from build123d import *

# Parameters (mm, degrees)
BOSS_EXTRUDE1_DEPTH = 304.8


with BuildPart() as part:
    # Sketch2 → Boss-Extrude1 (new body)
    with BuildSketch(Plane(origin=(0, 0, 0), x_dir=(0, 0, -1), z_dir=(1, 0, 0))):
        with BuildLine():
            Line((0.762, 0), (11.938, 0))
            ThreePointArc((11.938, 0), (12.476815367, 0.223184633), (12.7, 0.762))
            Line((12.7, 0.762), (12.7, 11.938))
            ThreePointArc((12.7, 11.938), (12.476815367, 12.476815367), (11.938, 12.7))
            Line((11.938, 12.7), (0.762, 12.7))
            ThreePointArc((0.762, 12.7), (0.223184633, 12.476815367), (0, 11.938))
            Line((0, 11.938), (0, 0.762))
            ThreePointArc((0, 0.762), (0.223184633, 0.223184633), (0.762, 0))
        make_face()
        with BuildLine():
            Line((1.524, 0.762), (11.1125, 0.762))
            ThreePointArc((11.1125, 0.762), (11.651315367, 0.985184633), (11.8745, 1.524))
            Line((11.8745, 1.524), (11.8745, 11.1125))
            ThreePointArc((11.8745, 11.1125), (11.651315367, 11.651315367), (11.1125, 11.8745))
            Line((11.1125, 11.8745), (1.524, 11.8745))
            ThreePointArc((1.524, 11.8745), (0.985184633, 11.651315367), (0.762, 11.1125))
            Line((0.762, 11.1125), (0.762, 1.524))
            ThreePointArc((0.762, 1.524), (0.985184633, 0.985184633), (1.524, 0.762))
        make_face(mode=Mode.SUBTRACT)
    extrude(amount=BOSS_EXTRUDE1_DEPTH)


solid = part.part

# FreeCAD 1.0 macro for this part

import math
import FreeCAD as App
import Part
import Sketcher

V = App.Vector
Q = App.Units.Quantity

doc = App.newDocument("Part")
body = doc.addObject("PartDesign::Body", "Body")

sketch1 = doc.addObject("Sketcher::SketchObject", "Sketch")
body.addObject(sketch1)
sketch1.AttachmentSupport = (doc.YZ_Plane, [""])
sketch1.MapMode = "FlatFace"
sketch1.addGeometry([
    Part.LineSegment(V(0, -0.762, 0), V(0, -11.938, 0)),
    Part.ArcOfCircle(Part.Circle(V(0.762, -11.938, 0), V(0, 0, 1), 0.762), math.radians(-180), math.radians(-90)),
    Part.LineSegment(V(0.762, -12.7, 0), V(11.938, -12.7, 0)),
    Part.ArcOfCircle(Part.Circle(V(11.938, -11.938, 0), V(0, 0, 1), 0.762), math.radians(-90), math.radians(0)),
    Part.LineSegment(V(12.7, -11.938, 0), V(12.7, -0.762, 0)),
    Part.ArcOfCircle(Part.Circle(V(11.938, -0.762, 0), V(0, 0, 1), 0.762), math.radians(0), math.radians(90)),
    Part.LineSegment(V(11.938, 0, 0), V(0.762, 0, 0)),
    Part.ArcOfCircle(Part.Circle(V(0.762, -0.762, 0), V(0, 0, 1), 0.762), math.radians(90), math.radians(180)),
    Part.LineSegment(V(0.762, -11.1125, 0), V(0.762, -1.524, 0)),
    Part.ArcOfCircle(Part.Circle(V(1.524, -1.524, 0), V(0, 0, 1), 0.762), math.radians(90), math.radians(180)),
    Part.LineSegment(V(1.524, -0.762, 0), V(11.1125, -0.762, 0)),
    Part.ArcOfCircle(Part.Circle(V(11.1125, -1.524, 0), V(0, 0, 1), 0.762), math.radians(0), math.radians(90)),
    Part.LineSegment(V(11.8745, -1.524, 0), V(11.8745, -11.1125, 0)),
    Part.ArcOfCircle(Part.Circle(V(11.1125, -11.1125, 0), V(0, 0, 1), 0.762), math.radians(-90), math.radians(0)),
    Part.LineSegment(V(11.1125, -11.8745, 0), V(1.524, -11.8745, 0)),
    Part.ArcOfCircle(Part.Circle(V(1.524, -11.1125, 0), V(0, 0, 1), 0.762), math.radians(-180), math.radians(-90)),
], False)
sketch1.addConstraint([
    Sketcher.Constraint("Tangent", 0, 2, 1, 1),
    Sketcher.Constraint("Tangent", 1, 2, 2, 1),
    Sketcher.Constraint("Tangent", 2, 2, 3, 1),
    Sketcher.Constraint("Tangent", 3, 2, 4, 1),
    Sketcher.Constraint("Tangent", 4, 2, 5, 1),
    Sketcher.Constraint("Tangent", 5, 2, 6, 1),
    Sketcher.Constraint("Tangent", 6, 2, 7, 1),
    Sketcher.Constraint("Tangent", 7, 2, 0, 1),
    Sketcher.Constraint("Tangent", 8, 2, 9, 2),
    Sketcher.Constraint("Tangent", 9, 1, 10, 1),
    Sketcher.Constraint("Tangent", 10, 2, 11, 2),
    Sketcher.Constraint("Tangent", 11, 1, 12, 1),
    Sketcher.Constraint("Tangent", 12, 2, 13, 2),
    Sketcher.Constraint("Tangent", 13, 1, 14, 1),
    Sketcher.Constraint("Tangent", 14, 2, 15, 2),
    Sketcher.Constraint("Tangent", 15, 1, 8, 1),
    Sketcher.Constraint("Vertical", 0),
    Sketcher.Constraint("Horizontal", 2),
    Sketcher.Constraint("Vertical", 4),
    Sketcher.Constraint("Horizontal", 6),
    Sketcher.Constraint("Vertical", 8),
    Sketcher.Constraint("Horizontal", 10),
    Sketcher.Constraint("Vertical", 12),
    Sketcher.Constraint("Horizontal", 14),
    Sketcher.Constraint("Equal", 1, 3),
    Sketcher.Constraint("Equal", 3, 5),
    Sketcher.Constraint("Equal", 5, 7),
    Sketcher.Constraint("Equal", 7, 9),
    Sketcher.Constraint("Equal", 9, 11),
    Sketcher.Constraint("Equal", 11, 13),
    Sketcher.Constraint("Equal", 13, 15),
    Sketcher.Constraint("PointOnObject", 0, 2, -2),
    Sketcher.Constraint("PointOnObject", 5, 2, -1),
    Sketcher.Constraint("Horizontal", 7, 2, 9, 1),
    Sketcher.Constraint("Vertical", 6, 2, 8, 2),
    Sketcher.Constraint("Equal", 6, 0),
    Sketcher.Constraint("Equal", 14, 8),
    Sketcher.Constraint("Radius", 1, Q("0.03 in")),
    Sketcher.Constraint("DistanceX", 2, 1, 2, 2, Q("0.44 in")),
    Sketcher.Constraint("DistanceX", 10, 1, 10, 2, Q("0.3775 in")),
])
pad1 = doc.addObject("PartDesign::Pad", "Pad")
body.addObject(pad1)
pad1.Profile = sketch1
pad1.Length = Q("12 in")

doc.recompute()
